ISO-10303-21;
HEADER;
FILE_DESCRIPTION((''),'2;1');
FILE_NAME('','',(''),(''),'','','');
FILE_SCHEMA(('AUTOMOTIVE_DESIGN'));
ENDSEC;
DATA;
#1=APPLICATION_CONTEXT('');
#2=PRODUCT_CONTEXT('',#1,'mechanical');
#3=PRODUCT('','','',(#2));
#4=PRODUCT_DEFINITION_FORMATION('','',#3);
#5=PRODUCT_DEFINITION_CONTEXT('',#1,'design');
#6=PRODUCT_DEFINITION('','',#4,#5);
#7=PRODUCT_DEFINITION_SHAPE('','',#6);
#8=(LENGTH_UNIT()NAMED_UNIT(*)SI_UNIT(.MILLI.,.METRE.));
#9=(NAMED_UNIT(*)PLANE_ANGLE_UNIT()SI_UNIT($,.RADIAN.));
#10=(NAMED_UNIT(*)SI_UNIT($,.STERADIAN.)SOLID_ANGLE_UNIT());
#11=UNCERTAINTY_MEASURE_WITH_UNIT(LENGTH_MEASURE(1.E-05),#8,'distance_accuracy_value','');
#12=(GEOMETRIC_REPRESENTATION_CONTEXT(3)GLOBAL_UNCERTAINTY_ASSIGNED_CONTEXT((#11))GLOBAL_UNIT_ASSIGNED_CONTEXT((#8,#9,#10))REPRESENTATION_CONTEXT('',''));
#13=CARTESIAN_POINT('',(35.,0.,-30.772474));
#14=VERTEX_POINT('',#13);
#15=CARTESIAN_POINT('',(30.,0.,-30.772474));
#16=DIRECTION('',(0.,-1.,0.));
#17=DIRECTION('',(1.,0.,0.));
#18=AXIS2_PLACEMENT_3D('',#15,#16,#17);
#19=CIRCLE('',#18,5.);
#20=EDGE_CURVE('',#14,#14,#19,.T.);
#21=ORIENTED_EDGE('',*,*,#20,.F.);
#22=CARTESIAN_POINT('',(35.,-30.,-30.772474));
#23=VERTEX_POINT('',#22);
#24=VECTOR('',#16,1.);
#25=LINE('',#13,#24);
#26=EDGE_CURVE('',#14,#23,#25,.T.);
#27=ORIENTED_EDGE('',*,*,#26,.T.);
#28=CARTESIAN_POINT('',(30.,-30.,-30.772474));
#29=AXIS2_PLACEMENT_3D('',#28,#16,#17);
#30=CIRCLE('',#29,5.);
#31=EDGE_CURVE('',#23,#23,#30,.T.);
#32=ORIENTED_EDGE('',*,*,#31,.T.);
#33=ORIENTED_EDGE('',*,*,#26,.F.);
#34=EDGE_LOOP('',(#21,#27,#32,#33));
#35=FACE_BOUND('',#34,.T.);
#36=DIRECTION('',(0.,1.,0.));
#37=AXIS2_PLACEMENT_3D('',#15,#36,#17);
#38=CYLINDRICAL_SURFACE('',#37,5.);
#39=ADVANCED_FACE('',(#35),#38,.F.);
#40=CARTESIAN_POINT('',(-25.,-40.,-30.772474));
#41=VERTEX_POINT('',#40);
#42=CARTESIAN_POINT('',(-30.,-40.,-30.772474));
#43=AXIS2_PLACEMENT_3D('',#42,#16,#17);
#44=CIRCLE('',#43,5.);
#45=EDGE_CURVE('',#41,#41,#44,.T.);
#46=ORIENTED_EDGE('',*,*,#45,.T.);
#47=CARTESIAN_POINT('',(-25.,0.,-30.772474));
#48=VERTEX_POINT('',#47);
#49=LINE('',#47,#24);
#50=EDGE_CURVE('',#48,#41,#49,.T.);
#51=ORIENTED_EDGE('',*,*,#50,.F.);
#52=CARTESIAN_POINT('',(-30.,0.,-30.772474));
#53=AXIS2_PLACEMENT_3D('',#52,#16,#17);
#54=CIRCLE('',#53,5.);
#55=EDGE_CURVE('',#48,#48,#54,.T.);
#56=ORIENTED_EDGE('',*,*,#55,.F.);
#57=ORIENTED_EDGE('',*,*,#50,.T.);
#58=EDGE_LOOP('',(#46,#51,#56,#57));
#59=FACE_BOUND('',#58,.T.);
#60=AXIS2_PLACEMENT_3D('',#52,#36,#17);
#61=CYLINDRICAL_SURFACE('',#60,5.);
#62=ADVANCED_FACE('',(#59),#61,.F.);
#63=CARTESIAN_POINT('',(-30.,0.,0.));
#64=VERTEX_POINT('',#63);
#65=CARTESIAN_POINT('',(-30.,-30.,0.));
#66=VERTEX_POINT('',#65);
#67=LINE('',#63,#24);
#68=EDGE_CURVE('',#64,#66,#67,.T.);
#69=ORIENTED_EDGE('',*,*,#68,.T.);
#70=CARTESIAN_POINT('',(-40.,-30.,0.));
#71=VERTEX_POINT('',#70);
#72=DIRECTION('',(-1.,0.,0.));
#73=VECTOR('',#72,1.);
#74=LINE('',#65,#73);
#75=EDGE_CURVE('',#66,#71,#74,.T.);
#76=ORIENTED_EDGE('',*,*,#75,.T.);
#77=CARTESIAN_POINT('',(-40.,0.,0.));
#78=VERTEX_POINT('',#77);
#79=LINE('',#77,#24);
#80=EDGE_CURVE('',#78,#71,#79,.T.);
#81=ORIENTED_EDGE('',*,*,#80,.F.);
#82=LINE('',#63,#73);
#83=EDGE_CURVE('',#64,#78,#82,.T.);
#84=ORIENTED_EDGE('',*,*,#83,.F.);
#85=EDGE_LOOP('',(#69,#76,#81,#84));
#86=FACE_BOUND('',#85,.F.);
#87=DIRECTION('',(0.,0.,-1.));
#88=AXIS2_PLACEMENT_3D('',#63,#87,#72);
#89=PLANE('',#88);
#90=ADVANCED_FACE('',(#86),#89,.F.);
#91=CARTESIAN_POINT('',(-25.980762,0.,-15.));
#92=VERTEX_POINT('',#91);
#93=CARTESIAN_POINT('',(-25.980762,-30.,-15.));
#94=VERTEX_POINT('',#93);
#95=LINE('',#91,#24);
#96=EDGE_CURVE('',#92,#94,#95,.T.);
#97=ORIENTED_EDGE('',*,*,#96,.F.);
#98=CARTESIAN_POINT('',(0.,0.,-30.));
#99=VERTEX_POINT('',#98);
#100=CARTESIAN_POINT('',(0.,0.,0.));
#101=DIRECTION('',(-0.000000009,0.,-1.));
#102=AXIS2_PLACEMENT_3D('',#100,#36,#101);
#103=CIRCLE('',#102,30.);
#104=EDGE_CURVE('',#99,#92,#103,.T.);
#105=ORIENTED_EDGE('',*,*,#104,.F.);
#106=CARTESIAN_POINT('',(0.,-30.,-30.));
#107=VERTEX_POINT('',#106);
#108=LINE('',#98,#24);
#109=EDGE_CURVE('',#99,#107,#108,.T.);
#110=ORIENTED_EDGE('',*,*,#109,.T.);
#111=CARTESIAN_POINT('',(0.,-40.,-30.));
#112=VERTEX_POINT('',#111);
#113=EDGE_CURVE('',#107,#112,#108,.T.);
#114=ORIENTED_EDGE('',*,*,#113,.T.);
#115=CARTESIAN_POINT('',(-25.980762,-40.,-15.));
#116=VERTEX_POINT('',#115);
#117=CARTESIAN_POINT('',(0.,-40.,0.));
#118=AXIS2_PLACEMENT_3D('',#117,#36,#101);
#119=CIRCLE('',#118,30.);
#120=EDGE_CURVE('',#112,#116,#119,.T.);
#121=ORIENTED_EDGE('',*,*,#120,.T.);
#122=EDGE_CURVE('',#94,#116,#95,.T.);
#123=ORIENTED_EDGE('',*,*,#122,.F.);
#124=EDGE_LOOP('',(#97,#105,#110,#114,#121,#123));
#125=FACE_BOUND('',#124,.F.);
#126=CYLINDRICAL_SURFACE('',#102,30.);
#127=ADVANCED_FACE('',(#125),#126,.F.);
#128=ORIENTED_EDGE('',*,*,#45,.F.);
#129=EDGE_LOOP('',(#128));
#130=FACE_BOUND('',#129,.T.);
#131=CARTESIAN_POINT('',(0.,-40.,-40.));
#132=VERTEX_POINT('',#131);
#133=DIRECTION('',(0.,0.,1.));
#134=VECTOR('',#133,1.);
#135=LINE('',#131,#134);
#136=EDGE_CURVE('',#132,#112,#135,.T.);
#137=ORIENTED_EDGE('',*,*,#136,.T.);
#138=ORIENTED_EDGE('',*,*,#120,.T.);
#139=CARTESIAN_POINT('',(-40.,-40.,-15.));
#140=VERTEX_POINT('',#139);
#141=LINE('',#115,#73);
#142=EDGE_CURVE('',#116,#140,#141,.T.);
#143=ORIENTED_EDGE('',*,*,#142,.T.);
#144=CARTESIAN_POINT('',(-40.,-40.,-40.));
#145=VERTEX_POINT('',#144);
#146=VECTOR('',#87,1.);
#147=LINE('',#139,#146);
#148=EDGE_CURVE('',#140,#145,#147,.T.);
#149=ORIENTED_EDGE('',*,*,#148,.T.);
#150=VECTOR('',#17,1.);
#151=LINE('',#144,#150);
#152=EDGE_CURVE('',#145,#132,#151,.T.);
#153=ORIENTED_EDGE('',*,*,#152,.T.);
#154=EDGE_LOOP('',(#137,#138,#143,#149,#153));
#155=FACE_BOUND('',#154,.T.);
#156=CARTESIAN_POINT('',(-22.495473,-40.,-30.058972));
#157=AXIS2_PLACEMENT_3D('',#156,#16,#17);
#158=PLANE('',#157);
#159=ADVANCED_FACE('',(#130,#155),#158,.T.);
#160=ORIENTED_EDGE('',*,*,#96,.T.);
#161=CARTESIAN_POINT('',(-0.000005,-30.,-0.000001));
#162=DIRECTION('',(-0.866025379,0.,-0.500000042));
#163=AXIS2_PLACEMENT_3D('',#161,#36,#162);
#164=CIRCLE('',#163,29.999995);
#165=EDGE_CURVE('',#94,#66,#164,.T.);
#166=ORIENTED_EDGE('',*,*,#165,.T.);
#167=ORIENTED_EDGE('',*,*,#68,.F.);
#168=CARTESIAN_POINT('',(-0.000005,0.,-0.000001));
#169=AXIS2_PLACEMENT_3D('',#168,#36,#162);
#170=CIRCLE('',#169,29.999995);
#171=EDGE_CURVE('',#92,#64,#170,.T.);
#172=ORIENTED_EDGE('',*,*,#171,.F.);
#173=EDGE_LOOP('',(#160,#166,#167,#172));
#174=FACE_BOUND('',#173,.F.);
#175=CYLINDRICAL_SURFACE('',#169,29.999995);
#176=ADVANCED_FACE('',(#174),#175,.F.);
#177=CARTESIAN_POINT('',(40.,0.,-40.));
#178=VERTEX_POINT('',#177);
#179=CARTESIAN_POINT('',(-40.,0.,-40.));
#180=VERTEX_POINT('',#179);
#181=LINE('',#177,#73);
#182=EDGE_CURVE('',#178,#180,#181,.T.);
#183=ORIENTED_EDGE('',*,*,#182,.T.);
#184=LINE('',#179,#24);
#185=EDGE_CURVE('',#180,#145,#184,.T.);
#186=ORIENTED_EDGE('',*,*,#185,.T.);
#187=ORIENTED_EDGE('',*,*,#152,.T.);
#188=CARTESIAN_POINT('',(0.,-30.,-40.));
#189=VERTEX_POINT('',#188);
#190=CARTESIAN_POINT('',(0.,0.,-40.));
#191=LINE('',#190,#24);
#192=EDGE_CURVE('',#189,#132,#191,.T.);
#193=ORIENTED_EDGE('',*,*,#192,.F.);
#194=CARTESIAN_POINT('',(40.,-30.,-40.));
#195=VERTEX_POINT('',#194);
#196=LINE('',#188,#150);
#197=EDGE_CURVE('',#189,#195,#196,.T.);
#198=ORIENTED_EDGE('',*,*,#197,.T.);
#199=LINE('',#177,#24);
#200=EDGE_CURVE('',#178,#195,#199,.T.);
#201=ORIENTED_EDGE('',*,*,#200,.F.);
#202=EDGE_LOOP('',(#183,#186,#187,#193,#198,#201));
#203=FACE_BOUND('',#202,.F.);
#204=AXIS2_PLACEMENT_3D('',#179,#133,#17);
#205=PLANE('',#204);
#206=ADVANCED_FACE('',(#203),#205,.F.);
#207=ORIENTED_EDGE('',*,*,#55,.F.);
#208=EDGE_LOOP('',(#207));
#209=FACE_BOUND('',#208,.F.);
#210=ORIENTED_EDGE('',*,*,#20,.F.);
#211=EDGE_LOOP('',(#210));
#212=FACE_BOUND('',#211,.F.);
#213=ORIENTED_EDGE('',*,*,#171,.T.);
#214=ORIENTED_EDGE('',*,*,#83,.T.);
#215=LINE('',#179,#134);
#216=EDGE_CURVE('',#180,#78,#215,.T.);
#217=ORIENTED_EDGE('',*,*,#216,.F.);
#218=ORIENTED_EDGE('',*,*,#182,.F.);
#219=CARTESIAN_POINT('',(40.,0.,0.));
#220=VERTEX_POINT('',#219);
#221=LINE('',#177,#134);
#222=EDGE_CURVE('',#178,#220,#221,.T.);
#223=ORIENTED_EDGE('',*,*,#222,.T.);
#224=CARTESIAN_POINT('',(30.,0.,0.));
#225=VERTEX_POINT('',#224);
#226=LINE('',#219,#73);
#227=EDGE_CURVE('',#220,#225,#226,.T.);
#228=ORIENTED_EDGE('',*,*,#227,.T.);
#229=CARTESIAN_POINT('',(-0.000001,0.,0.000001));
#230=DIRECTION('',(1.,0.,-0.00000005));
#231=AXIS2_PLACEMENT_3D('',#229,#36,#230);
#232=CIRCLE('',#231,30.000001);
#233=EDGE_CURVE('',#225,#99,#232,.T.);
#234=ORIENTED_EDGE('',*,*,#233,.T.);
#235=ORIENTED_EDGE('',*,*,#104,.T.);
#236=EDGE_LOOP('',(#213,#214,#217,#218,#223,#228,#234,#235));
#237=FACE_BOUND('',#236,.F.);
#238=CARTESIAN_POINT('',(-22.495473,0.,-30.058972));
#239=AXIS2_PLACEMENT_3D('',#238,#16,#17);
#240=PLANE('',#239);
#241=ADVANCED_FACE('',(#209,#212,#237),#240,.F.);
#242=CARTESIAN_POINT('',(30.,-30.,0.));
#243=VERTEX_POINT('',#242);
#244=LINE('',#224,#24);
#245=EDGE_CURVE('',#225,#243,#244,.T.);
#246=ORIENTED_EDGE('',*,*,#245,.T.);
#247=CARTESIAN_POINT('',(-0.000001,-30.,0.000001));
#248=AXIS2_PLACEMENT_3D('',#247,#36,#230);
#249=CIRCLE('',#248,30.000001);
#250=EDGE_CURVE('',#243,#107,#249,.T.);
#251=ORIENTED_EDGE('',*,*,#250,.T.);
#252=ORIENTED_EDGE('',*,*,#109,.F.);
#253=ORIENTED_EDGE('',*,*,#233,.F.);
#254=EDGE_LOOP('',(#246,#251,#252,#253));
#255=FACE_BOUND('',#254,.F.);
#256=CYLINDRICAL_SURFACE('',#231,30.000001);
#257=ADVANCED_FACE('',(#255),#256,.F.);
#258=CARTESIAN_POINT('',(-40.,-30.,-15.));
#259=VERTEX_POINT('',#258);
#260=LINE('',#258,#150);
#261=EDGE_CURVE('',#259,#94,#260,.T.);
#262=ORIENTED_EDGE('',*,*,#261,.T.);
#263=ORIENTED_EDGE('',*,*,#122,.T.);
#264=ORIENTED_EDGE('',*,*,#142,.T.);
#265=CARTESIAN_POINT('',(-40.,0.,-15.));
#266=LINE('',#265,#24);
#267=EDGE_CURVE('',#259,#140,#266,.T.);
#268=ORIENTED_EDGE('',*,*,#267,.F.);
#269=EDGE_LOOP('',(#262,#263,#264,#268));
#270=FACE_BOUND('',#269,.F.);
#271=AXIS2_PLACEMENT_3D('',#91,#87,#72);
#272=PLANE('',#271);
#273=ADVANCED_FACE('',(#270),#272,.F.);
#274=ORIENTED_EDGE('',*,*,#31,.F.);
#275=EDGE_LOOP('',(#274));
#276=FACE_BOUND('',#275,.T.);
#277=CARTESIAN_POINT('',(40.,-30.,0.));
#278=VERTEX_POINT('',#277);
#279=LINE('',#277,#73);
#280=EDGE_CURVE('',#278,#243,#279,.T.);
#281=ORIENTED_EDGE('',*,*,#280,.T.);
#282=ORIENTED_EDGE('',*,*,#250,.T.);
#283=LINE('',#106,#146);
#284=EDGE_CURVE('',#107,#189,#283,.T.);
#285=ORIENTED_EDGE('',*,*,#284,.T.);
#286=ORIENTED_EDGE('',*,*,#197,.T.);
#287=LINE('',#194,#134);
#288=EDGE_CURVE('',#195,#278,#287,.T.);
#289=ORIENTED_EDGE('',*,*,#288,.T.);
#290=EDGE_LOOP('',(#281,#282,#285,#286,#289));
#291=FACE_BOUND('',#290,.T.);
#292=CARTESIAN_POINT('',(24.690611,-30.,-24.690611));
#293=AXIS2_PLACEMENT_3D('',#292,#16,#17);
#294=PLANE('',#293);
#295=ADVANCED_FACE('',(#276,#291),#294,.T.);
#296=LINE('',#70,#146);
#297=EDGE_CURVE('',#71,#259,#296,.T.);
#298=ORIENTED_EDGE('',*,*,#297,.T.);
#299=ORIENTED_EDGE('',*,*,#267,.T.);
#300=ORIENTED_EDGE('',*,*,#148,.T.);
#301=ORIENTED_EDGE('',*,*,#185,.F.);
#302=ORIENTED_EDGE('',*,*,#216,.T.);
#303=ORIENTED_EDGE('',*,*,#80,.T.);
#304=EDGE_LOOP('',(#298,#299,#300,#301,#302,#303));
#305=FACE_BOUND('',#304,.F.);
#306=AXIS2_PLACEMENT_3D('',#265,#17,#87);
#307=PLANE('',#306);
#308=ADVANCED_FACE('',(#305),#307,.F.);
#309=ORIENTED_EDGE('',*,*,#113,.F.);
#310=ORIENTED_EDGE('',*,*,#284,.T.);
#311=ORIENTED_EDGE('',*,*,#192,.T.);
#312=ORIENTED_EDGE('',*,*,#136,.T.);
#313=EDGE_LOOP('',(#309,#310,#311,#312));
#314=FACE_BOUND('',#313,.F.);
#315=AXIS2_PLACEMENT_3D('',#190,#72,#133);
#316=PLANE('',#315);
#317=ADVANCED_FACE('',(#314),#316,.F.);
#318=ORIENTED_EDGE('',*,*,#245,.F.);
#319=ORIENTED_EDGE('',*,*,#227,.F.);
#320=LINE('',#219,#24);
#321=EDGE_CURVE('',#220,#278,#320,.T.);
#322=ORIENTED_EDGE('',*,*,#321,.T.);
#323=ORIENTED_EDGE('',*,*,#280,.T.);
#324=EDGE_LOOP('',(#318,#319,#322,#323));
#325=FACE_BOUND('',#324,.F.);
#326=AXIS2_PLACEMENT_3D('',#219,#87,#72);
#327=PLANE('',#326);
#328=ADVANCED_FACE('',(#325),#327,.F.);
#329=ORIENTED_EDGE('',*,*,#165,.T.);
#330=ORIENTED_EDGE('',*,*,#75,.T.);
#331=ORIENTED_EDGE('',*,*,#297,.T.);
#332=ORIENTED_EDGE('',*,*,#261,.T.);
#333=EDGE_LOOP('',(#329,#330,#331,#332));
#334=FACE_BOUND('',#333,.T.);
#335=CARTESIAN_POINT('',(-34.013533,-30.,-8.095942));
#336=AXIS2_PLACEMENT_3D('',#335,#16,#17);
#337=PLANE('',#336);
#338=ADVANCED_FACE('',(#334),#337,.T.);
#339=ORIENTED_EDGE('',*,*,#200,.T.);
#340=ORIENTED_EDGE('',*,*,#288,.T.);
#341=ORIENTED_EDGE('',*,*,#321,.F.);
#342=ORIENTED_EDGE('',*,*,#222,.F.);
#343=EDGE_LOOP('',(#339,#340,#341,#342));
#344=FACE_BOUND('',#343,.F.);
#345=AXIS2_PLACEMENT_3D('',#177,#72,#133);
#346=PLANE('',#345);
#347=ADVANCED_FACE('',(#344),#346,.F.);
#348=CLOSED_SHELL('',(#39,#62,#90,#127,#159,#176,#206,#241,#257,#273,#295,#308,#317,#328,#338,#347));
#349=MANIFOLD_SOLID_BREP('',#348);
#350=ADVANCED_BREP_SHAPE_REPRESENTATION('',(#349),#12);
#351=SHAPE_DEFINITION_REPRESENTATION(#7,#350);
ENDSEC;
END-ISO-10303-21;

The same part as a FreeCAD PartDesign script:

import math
import FreeCAD as App
import Part
import Sketcher
Q = App.Units.Quantity

doc = App.newDocument("Part")
body = doc.addObject("PartDesign::Body", "Body")
body.AllowCompound = True

# Sketch on XZ plane
sketch1 = doc.addObject("Sketcher::SketchObject", "Sketch")
body.addObject(sketch1)
sketch1.AttachmentSupport = (doc.XZ_Plane, [""])
sketch1.MapMode = "FlatFace"
sketch1.addGeometry(Part.ArcOfCircle(Part.Circle(App.Vector(-0.000001, 0.000001, 0), App.Vector(0, 0, 1), 30.000001), math.radians(-89.999997), math.radians(-0.000003)), False)
sketch1.addGeometry(Part.LineSegment(App.Vector(0, -30, 0), App.Vector(0, -40, 0)), False)
sketch1.addGeometry(Part.LineSegment(App.Vector(0, -40, 0), App.Vector(40, -40, 0)), False)
sketch1.addGeometry(Part.LineSegment(App.Vector(40, -40, 0), App.Vector(40, 0, 0)), False)
sketch1.addGeometry(Part.LineSegment(App.Vector(40, 0, 0), App.Vector(30, 0, 0)), False)
sketch1.addGeometry(Part.Circle(App.Vector(30, -30.772474, 0), App.Vector(0, 0, 1), 5), False)
sketch1.addGeometry(Part.ArcOfCircle(Part.Circle(App.Vector(-0.000005, -0.000001, 0), App.Vector(0, 0, 1), 29.999995), math.radians(179.999998), math.radians(210.000003)), False)
sketch1.addGeometry(Part.LineSegment(App.Vector(-30, 0, 0), App.Vector(-40, 0, 0)), False)
sketch1.addGeometry(Part.LineSegment(App.Vector(-40, 0, 0), App.Vector(-40, -15, 0)), False)
sketch1.addGeometry(Part.LineSegment(App.Vector(-40, -15, 0), App.Vector(-25.980762, -15, 0)), False)
sketch1.addConstraint(Sketcher.Constraint("Coincident", 0, 1, 1, 1))
sketch1.addConstraint(Sketcher.Constraint("Coincident", 1, 2, 2, 1))
sketch1.addConstraint(Sketcher.Constraint("Coincident", 2, 2, 3, 1))
sketch1.addConstraint(Sketcher.Constraint("Coincident", 3, 2, 4, 1))
sketch1.addConstraint(Sketcher.Constraint("Coincident", 4, 2, 0, 2))
sketch1.addConstraint(Sketcher.Constraint("Coincident", 6, 1, 7, 1))
sketch1.addConstraint(Sketcher.Constraint("Coincident", 7, 2, 8, 1))
sketch1.addConstraint(Sketcher.Constraint("Coincident", 8, 2, 9, 1))
sketch1.addConstraint(Sketcher.Constraint("Coincident", 9, 2, 6, 2))
sketch1.addConstraint(Sketcher.Constraint("Vertical", 1))
sketch1.addConstraint(Sketcher.Constraint("Horizontal", 2))
sketch1.addConstraint(Sketcher.Constraint("Vertical", 3))
sketch1.addConstraint(Sketcher.Constraint("Horizontal", 4))
sketch1.addConstraint(Sketcher.Constraint("Horizontal", 7))
sketch1.addConstraint(Sketcher.Constraint("Vertical", 8))
sketch1.addConstraint(Sketcher.Constraint("Horizontal", 9))
sketch1.addConstraint(Sketcher.Constraint("Coincident", 0, 3, -1, 1))
sketch1.addConstraint(Sketcher.Constraint("Coincident", 6, 3, -1, 1))
sketch1.addConstraint(Sketcher.Constraint("Symmetric", 4, 2, 6, 1, -1, 1))
sketch1.addConstraint(Sketcher.Constraint("Symmetric", 3, 2, 7, 2, -2))
sketch1.addConstraint(Sketcher.Constraint("PointOnObject", 0, 1, -2))
sketch1.addConstraint(Sketcher.Constraint("Vertical", 5, 3, 4, 2))
sketch1.addConstraint(Sketcher.Constraint("Equal", 7, 1))
sketch1.addConstraint(Sketcher.Constraint("Diameter", 5, Q("10 mm")))
sketch1.addConstraint(Sketcher.Constraint("Radius", 0, Q("30.000001 mm")))
sketch1.addConstraint(Sketcher.Constraint("DistanceX", 2, 1, 2, 2, Q("40 mm")))
sketch1.addConstraint(Sketcher.Constraint("DistanceY", 8, 2, 8, 1, Q("15 mm")))
sketch1.addConstraint(Sketcher.Constraint("DistanceY", 5, 3, -1, 1, Q("30.772474 mm")))
pad1 = doc.addObject("PartDesign::Pad", "Pad")
body.addObject(pad1)
pad1.Profile = sketch1
pad1.Length = 30

# Sketch on XZ plane
sketch2 = doc.addObject("Sketcher::SketchObject", "Sketch001")
body.addObject(sketch2)
sketch2.AttachmentSupport = (doc.XZ_Plane, [""])
sketch2.MapMode = "FlatFace"
sketch2.addGeometry(Part.ArcOfCircle(Part.Circle(App.Vector(0, 0, 0), App.Vector(0, 0, 1), 30), math.radians(-150), math.radians(-90.000001)), False)
sketch2.addGeometry(Part.LineSegment(App.Vector(-25.980762, -15, 0), App.Vector(-40, -15, 0)), False)
sketch2.addGeometry(Part.LineSegment(App.Vector(-40, -15, 0), App.Vector(-40, -40, 0)), False)
sketch2.addGeometry(Part.LineSegment(App.Vector(-40, -40, 0), App.Vector(0, -40, 0)), False)
sketch2.addGeometry(Part.LineSegment(App.Vector(0, -40, 0), App.Vector(0, -30, 0)), False)
sketch2.addGeometry(Part.Circle(App.Vector(-30, -30.772474, 0), App.Vector(0, 0, 1), 5), False)
sketch2.addConstraint(Sketcher.Constraint("Coincident", 0, 1, 1, 1))
sketch2.addConstraint(Sketcher.Constraint("Coincident", 1, 2, 2, 1))
sketch2.addConstraint(Sketcher.Constraint("Coincident", 2, 2, 3, 1))
sketch2.addConstraint(Sketcher.Constraint("Coincident", 3, 2, 4, 1))
sketch2.addConstraint(Sketcher.Constraint("Coincident", 4, 2, 0, 2))
sketch2.addConstraint(Sketcher.Constraint("Horizontal", 1))
sketch2.addConstraint(Sketcher.Constraint("Vertical", 2))
sketch2.addConstraint(Sketcher.Constraint("Horizontal", 3))
sketch2.addConstraint(Sketcher.Constraint("Vertical", 4))
sketch2.addConstraint(Sketcher.Constraint("Coincident", 0, 3, -1, 1))
sketch2.addConstraint(Sketcher.Constraint("PointOnObject", 3, 2, -2))
sketch2.addConstraint(Sketcher.Constraint("Diameter", 5, Q("10 mm")))
sketch2.addConstraint(Sketcher.Constraint("Radius", 0, Q("30 mm")))
sketch2.addConstraint(Sketcher.Constraint("DistanceX", 3, 1, 3, 2, Q("40 mm")))
sketch2.addConstraint(Sketcher.Constraint("DistanceY", 2, 2, 2, 1, Q("25 mm")))
sketch2.addConstraint(Sketcher.Constraint("DistanceY", 4, 1, 4, 2, Q("10 mm")))
sketch2.addConstraint(Sketcher.Constraint("DistanceX", 5, 3, -1, 1, Q("30 mm")))
sketch2.addConstraint(Sketcher.Constraint("DistanceY", 5, 3, -1, 1, Q("30.772474 mm")))
pad2 = doc.addObject("PartDesign::Pad", "Pad001")
body.addObject(pad2)
pad2.Profile = sketch2
pad2.Length = 40

doc.recompute()
